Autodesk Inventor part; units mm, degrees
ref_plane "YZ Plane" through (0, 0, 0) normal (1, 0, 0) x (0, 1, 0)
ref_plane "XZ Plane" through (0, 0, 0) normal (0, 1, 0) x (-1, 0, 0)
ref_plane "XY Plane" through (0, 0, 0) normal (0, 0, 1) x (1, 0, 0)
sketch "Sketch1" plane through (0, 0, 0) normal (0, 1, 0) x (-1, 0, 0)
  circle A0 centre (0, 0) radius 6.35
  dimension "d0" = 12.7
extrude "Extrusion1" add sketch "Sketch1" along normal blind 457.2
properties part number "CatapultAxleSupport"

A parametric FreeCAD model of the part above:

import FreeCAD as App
import Part
import Sketcher

V = App.Vector
Q = App.Units.Quantity

doc = App.newDocument("Part")
body = doc.addObject("PartDesign::Body", "Body")

# Sketch on XZ plane
sketch1 = body.newObject("Sketcher::SketchObject", "Sketch")
sketch1.AttachmentSupport = (doc.getObject("XZ_Plane"), [""])
sketch1.MapMode = "FlatFace"
sketch1.addGeometry(Part.Circle(V(0, 0, 0), V(0, 0, 1), 6), False)
sketch1.addConstraint([
    Sketcher.Constraint("Coincident", 0, 3, -1, 1),
    Sketcher.Constraint("Diameter", 0, Q("0.5 in")),
])
pad1 = body.newObject("PartDesign::Pad", "Pad")
pad1.Profile = sketch1
pad1.Length = Q("18 in")
pad1.Reversed = True

doc.recompute()
